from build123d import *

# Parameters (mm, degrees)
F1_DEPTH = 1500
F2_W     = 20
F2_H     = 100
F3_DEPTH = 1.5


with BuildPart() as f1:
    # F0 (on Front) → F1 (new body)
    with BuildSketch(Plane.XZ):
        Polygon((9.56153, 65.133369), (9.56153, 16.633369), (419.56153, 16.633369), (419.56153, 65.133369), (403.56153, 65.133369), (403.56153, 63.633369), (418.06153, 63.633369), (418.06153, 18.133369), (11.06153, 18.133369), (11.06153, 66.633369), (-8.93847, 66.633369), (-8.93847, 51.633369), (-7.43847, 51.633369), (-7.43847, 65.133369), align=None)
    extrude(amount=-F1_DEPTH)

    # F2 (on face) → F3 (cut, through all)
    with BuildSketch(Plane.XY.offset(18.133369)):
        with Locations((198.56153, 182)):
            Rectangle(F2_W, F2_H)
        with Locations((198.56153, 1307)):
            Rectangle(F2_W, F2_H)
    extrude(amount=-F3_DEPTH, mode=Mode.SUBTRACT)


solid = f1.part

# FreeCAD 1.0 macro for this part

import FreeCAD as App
import Part
import Sketcher
from FreeCAD import Vector
Q = App.Units.Quantity

doc = App.newDocument("Part")
body = doc.addObject("PartDesign::Body", "Body")

sketch1 = doc.addObject("Sketcher::SketchObject", "Sketch")
body.addObject(sketch1)
sketch1.AttachmentSupport = (doc.XZ_Plane, [""])
sketch1.MapMode = "FlatFace"
sketch1.addGeometry([
    Part.LineSegment(Vector(9.6, 65.1, 0), Vector(9.6, 16.6, 0)),
    Part.LineSegment(Vector(9.6, 16.6, 0), Vector(419.6, 16.6, 0)),
    Part.LineSegment(Vector(419.6, 16.6, 0), Vector(419.6, 65.1, 0)),
    Part.LineSegment(Vector(419.6, 65.1, 0), Vector(403.6, 65.1, 0)),
    Part.LineSegment(Vector(403.6, 65.1, 0), Vector(403.6, 63.6, 0)),
    Part.LineSegment(Vector(403.6, 63.6, 0), Vector(418.1, 63.6, 0)),
    Part.LineSegment(Vector(418.1, 63.6, 0), Vector(418.1, 18.1, 0)),
    Part.LineSegment(Vector(418.1, 18.1, 0), Vector(11.1, 18.1, 0)),
    Part.LineSegment(Vector(11.1, 18.1, 0), Vector(11.1, 66.6, 0)),
    Part.LineSegment(Vector(11.1, 66.6, 0), Vector(-8.9, 66.6, 0)),
    Part.LineSegment(Vector(-8.9, 66.6, 0), Vector(-8.9, 51.6, 0)),
    Part.LineSegment(Vector(-8.9, 51.6, 0), Vector(-7.4, 51.6, 0)),
    Part.LineSegment(Vector(-7.4, 51.6, 0), Vector(-7.4, 65.1, 0)),
    Part.LineSegment(Vector(-7.4, 65.1, 0), Vector(9.6, 65.1, 0)),
], False)
sketch1.addConstraint([
    Sketcher.Constraint("Coincident", 0, 2, 1, 1),
    Sketcher.Constraint("Coincident", 1, 2, 2, 1),
    Sketcher.Constraint("Coincident", 2, 2, 3, 1),
    Sketcher.Constraint("Coincident", 3, 2, 4, 1),
    Sketcher.Constraint("Coincident", 4, 2, 5, 1),
    Sketcher.Constraint("Coincident", 5, 2, 6, 1),
    Sketcher.Constraint("Coincident", 6, 2, 7, 1),
    Sketcher.Constraint("Coincident", 7, 2, 8, 1),
    Sketcher.Constraint("Coincident", 8, 2, 9, 1),
    Sketcher.Constraint("Coincident", 9, 2, 10, 1),
    Sketcher.Constraint("Coincident", 10, 2, 11, 1),
    Sketcher.Constraint("Coincident", 11, 2, 12, 1),
    Sketcher.Constraint("Coincident", 12, 2, 13, 1),
    Sketcher.Constraint("Coincident", 13, 2, 0, 1),
    Sketcher.Constraint("Vertical", 0),
    Sketcher.Constraint("Horizontal", 1),
    Sketcher.Constraint("Vertical", 2),
    Sketcher.Constraint("Horizontal", 3),
    Sketcher.Constraint("Vertical", 4),
    Sketcher.Constraint("Horizontal", 5),
    Sketcher.Constraint("Vertical", 6),
    Sketcher.Constraint("Horizontal", 7),
    Sketcher.Constraint("Vertical", 8),
    Sketcher.Constraint("Horizontal", 9),
    Sketcher.Constraint("Vertical", 10),
    Sketcher.Constraint("Horizontal", 11),
    Sketcher.Constraint("Vertical", 12),
    Sketcher.Constraint("Horizontal", 13),
    Sketcher.Constraint("Horizontal", 3, 2, 12, 2),
    Sketcher.Constraint("Equal", 11, 4),
    Sketcher.Constraint("Equal", 2, 8),
    Sketcher.Constraint("DistanceX", 1, 1, 1, 2, Q("410 mm")),
    Sketcher.Constraint("DistanceX", 3, 2, 3, 1, Q("16 mm")),
    Sketcher.Constraint("DistanceX", 7, 2, 7, 1, Q("407 mm")),
    Sketcher.Constraint("DistanceX", 9, 2, 9, 1, Q("20 mm")),
    Sketcher.Constraint("DistanceX", 13, 1, 13, 2, Q("17 mm")),
    Sketcher.Constraint("DistanceY", 10, 2, 10, 1, Q("15 mm")),
    Sketcher.Constraint("DistanceX", 5, 1, 5, 2, Q("14.5 mm")),
    Sketcher.Constraint("DistanceY", 0, 2, 0, 1, Q("48.5 mm")),
    Sketcher.Constraint("DistanceY", 6, 2, 6, 1, Q("45.5 mm")),
    Sketcher.Constraint("DistanceX", -1, 1, 0, 2, Q("9.56153 mm")),
    Sketcher.Constraint("DistanceY", -1, 1, 0, 2, Q("16.633369 mm")),
])
pad1 = doc.addObject("PartDesign::Pad", "Pad")
body.addObject(pad1)
pad1.Profile = sketch1
pad1.Length = 1500
pad1.Reversed = True

sketch2 = doc.addObject("Sketcher::SketchObject", "Sketch001")
body.addObject(sketch2)
sketch2.AttachmentSupport = (doc.XY_Plane, [""])
sketch2.MapMode = "FlatFace"
sketch2.AttachmentOffset = App.Placement(Vector(0, 0, 18.133369), App.Rotation())
sketch2.addGeometry([
    Part.LineSegment(Vector(189, 232, 0), Vector(189, 132, 0)),
    Part.LineSegment(Vector(189, 132, 0), Vector(209, 132, 0)),
    Part.LineSegment(Vector(209, 132, 0), Vector(209, 232, 0)),
    Part.LineSegment(Vector(209, 232, 0), Vector(189, 232, 0)),
    Part.LineSegment(Vector(189, 1357, 0), Vector(189, 1257, 0)),
    Part.LineSegment(Vector(189, 1257, 0), Vector(209, 1257, 0)),
    Part.LineSegment(Vector(209, 1257, 0), Vector(209, 1357, 0)),
    Part.LineSegment(Vector(209, 1357, 0), Vector(189, 1357, 0)),
], False)
sketch2.addConstraint([
    Sketcher.Constraint("Coincident", 0, 2, 1, 1),
    Sketcher.Constraint("Coincident", 1, 2, 2, 1),
    Sketcher.Constraint("Coincident", 2, 2, 3, 1),
    Sketcher.Constraint("Coincident", 3, 2, 0, 1),
    Sketcher.Constraint("Coincident", 4, 2, 5, 1),
    Sketcher.Constraint("Coincident", 5, 2, 6, 1),
    Sketcher.Constraint("Coincident", 6, 2, 7, 1),
    Sketcher.Constraint("Coincident", 7, 2, 4, 1),
    Sketcher.Constraint("Vertical", 0),
    Sketcher.Constraint("Horizontal", 1),
    Sketcher.Constraint("Vertical", 2),
    Sketcher.Constraint("Horizontal", 3),
    Sketcher.Constraint("Vertical", 4),
    Sketcher.Constraint("Horizontal", 5),
    Sketcher.Constraint("Vertical", 6),
    Sketcher.Constraint("Horizontal", 7),
    Sketcher.Constraint("Vertical", 3, 2, 4, 2),
    Sketcher.Constraint("Vertical", 2, 2, 5, 2),
    Sketcher.Constraint("Equal", 2, 4),
    Sketcher.Constraint("DistanceX", 1, 1, 1, 2, Q("20 mm")),
    Sketcher.Constraint("DistanceY", 0, 2, 0, 1, Q("100 mm")),
    Sketcher.Constraint("DistanceY", -1, 1, 0, 2, Q("132 mm")),
    Sketcher.Constraint("DistanceY", -1, 1, 4, 2, Q("1257 mm")),
    Sketcher.Constraint("DistanceX", -1, 1, 0, 2, Q("188.56153 mm")),
])
pocket1 = doc.addObject("PartDesign::Pocket", "Pocket")
body.addObject(pocket1)
pocket1.Profile = sketch2
pocket1.Type = "ThroughAll"

doc.recompute()
